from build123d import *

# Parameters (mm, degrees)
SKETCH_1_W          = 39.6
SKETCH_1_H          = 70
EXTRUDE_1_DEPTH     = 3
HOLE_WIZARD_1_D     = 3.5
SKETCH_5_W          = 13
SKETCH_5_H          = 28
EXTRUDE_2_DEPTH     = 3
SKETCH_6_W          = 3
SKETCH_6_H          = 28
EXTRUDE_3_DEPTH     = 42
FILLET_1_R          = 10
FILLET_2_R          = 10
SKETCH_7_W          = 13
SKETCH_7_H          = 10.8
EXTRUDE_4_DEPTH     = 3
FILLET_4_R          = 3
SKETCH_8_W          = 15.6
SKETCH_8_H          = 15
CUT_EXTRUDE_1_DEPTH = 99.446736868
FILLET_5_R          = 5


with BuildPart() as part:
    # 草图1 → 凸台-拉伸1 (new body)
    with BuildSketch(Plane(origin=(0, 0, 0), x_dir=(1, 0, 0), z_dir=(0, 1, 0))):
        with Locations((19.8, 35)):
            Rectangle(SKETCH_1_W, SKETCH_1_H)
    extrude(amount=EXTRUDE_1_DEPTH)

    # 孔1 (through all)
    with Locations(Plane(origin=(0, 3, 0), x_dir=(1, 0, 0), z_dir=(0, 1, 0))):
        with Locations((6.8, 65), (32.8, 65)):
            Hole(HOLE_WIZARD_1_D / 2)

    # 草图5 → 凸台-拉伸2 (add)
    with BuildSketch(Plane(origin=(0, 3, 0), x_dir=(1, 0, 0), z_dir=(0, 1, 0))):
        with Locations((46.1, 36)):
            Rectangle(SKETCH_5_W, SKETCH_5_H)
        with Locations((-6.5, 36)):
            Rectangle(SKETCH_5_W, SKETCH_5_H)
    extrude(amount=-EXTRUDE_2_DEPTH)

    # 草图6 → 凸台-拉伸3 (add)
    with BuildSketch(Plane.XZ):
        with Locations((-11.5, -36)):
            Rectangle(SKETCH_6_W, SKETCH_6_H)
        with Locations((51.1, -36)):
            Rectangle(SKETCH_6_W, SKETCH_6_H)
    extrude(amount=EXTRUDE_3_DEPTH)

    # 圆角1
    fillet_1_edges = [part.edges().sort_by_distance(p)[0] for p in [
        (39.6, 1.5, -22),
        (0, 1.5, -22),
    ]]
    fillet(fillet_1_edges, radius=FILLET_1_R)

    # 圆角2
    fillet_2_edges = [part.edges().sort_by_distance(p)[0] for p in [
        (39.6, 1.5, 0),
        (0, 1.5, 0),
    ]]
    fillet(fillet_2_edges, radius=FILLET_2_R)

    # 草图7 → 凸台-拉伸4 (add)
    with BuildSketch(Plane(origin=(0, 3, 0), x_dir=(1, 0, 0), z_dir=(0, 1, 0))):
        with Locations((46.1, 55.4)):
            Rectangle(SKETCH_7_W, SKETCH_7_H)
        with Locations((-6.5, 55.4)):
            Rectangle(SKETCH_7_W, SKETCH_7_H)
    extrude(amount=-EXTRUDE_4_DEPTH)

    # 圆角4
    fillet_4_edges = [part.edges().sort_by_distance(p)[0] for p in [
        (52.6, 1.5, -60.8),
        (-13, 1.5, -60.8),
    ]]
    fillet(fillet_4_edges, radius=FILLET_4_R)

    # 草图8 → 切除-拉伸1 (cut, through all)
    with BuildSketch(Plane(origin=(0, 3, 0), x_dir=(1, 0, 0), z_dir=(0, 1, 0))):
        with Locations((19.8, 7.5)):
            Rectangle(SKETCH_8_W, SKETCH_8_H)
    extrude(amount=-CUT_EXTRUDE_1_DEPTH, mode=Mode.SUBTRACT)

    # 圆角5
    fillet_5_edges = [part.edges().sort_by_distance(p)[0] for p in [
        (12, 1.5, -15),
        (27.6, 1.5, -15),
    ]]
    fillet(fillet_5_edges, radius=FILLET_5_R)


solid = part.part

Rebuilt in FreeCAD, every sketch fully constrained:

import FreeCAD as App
import Part
import Sketcher
from FreeCAD import Vector
Q = App.Units.Quantity


def edges_at(feature, points):
    """Names of the edges that pass closest to the given points."""
    edges = feature.Shape.Edges
    near = lambda p: min(range(len(edges)), key=lambda i: edges[i].distToShape(Part.Vertex(*p))[0])
    return sorted({f"Edge{near(p) + 1}" for p in points})

doc = App.newDocument("Part")
params = doc.addObject("Spreadsheet::Sheet", "Params")
for row, (alias, value) in enumerate([
    ("sketch1_height", "70 mm"),
    ("sketch1_width", "39.6 mm"),
    ("pad1_length", "3 mm"),
    ("sketch2_diameter", "3.5 mm"),
    ("hole_diameter", "3.5 mm"),
    ("sketch3_width", "13 mm"),
    ("sketch3_height", "28 mm"),
    ("pad2_length", "3 mm"),
    ("sketch4_width", "3 mm"),
    ("sketch4_height", "28 mm"),
    ("pad3_length", "42 mm"),
    ("fillet_radius", "10 mm"),
    ("fillet2_radius", "10 mm"),
    ("sketch5_width", "13 mm"),
    ("sketch5_height", "10.8 mm"),
    ("pad4_length", "3 mm"),
    ("fillet3_radius", "3 mm"),
    ("sketch6_height", "15 mm"),
    ("sketch6_width", "15.6 mm"),
    ("fillet4_radius", "5 mm"),
], start=1):
    params.set(f"A{row}", alias)
    params.set(f"B{row}", "=" + value)
    params.setAlias(f"B{row}", alias)

body = doc.addObject("PartDesign::Body", "Body")

# Sketch on XZ plane
sketch1 = body.newObject("Sketcher::SketchObject", "Sketch")
sketch1.AttachmentSupport = (doc.getObject("XZ_Plane"), [""])
sketch1.MapMode = "FlatFace"
sketch1.addGeometry(Part.LineSegment(Vector(0, -70, 0), Vector(0, 0, 0)), False)
sketch1.addGeometry(Part.LineSegment(Vector(0, 0, 0), Vector(40, 0, 0)), False)
sketch1.addGeometry(Part.LineSegment(Vector(40, 0, 0), Vector(40, -70, 0)), False)
sketch1.addGeometry(Part.LineSegment(Vector(40, -70, 0), Vector(0, -70, 0)), False)
sketch1.addConstraint(Sketcher.Constraint("Coincident", 0, 2, 1, 1))
sketch1.addConstraint(Sketcher.Constraint("Coincident", 1, 2, 2, 1))
sketch1.addConstraint(Sketcher.Constraint("Coincident", 2, 2, 3, 1))
sketch1.addConstraint(Sketcher.Constraint("Coincident", 3, 2, 0, 1))
sketch1.addConstraint(Sketcher.Constraint("Vertical", 0))
sketch1.addConstraint(Sketcher.Constraint("Horizontal", 1))
sketch1.addConstraint(Sketcher.Constraint("Vertical", 2))
sketch1.addConstraint(Sketcher.Constraint("Horizontal", 3))
sketch1.addConstraint(Sketcher.Constraint("Coincident", 0, 2, -1, 1))
sketch1.addConstraint(Sketcher.Constraint("DistanceY", 0, 1, 0, 2, Q("70 mm")))
sketch1.addConstraint(Sketcher.Constraint("DistanceX", 1, 1, 1, 2, Q("39.6 mm")))
sketch1.setExpression("Constraints[9]", "Params.sketch1_height")
sketch1.setExpression("Constraints[10]", "Params.sketch1_width")
pad1 = body.newObject("PartDesign::Pad", "Pad")
pad1.Profile = sketch1
pad1.setExpression("Length", "Params.pad1_length")
pad1.Reversed = True

# Sketch on XZ plane
sketch2 = body.newObject("Sketcher::SketchObject", "Sketch001")
sketch2.AttachmentSupport = (doc.getObject("XZ_Plane"), [""])
sketch2.MapMode = "FlatFace"
sketch2.AttachmentOffset = App.Placement(Vector(0, 0, -3), App.Rotation())
sketch2.addGeometry(Part.Circle(Vector(6.8, -65, 0), Vector(0, 0, 1), 1.8), False)
sketch2.addGeometry(Part.Circle(Vector(32.8, -65, 0), Vector(0, 0, 1), 1.8), False)
sketch2.addConstraint(Sketcher.Constraint("Equal", 0, 1))
sketch2.addConstraint(Sketcher.Constraint("Horizontal", 0, 3, 1, 3))
sketch2.addConstraint(Sketcher.Constraint("Diameter", 0, Q("3.5 mm")))
sketch2.addConstraint(Sketcher.Constraint("DistanceY", 0, 3, -1, 1, Q("65 mm")))
sketch2.addConstraint(Sketcher.Constraint("DistanceX", 0, 3, 1, 3, Q("26 mm")))
sketch2.addConstraint(Sketcher.Constraint("DistanceX", -1, 1, 0, 3, Q("6.8 mm")))
sketch2.setExpression("Constraints[2]", "Params.sketch2_diameter")
doc.recompute()
hole = body.newObject("PartDesign::Hole", "Hole")
hole.Profile = sketch2
hole.ThreadType = "None"
hole.setExpression("Diameter", "Params.hole_diameter")
hole.DepthType = "ThroughAll"
hole.Reversed = True

# Sketch on XZ plane
sketch3 = body.newObject("Sketcher::SketchObject", "Sketch002")
sketch3.AttachmentSupport = (doc.getObject("XZ_Plane"), [""])
sketch3.MapMode = "FlatFace"
sketch3.AttachmentOffset = App.Placement(Vector(0, 0, -3), App.Rotation())
sketch3.addGeometry(Part.LineSegment(Vector(40, -50, 0), Vector(40, -22, 0)), False)
sketch3.addGeometry(Part.LineSegment(Vector(40, -22, 0), Vector(53, -22, 0)), False)
sketch3.addGeometry(Part.LineSegment(Vector(53, -22, 0), Vector(53, -50, 0)), False)
sketch3.addGeometry(Part.LineSegment(Vector(53, -50, 0), Vector(40, -50, 0)), False)
sketch3.addGeometry(Part.LineSegment(Vector(-13, -50, 0), Vector(-13, -22, 0)), False)
sketch3.addGeometry(Part.LineSegment(Vector(-13, -22, 0), Vector(0, -22, 0)), False)
sketch3.addGeometry(Part.LineSegment(Vector(0, -22, 0), Vector(0, -50, 0)), False)
sketch3.addGeometry(Part.LineSegment(Vector(0, -50, 0), Vector(-13, -50, 0)), False)
sketch3.addConstraint(Sketcher.Constraint("Coincident", 0, 2, 1, 1))
sketch3.addConstraint(Sketcher.Constraint("Coincident", 1, 2, 2, 1))
sketch3.addConstraint(Sketcher.Constraint("Coincident", 2, 2, 3, 1))
sketch3.addConstraint(Sketcher.Constraint("Coincident", 3, 2, 0, 1))
sketch3.addConstraint(Sketcher.Constraint("Coincident", 4, 2, 5, 1))
sketch3.addConstraint(Sketcher.Constraint("Coincident", 5, 2, 6, 1))
sketch3.addConstraint(Sketcher.Constraint("Coincident", 6, 2, 7, 1))
sketch3.addConstraint(Sketcher.Constraint("Coincident", 7, 2, 4, 1))
sketch3.addConstraint(Sketcher.Constraint("Vertical", 0))
sketch3.addConstraint(Sketcher.Constraint("Horizontal", 1))
sketch3.addConstraint(Sketcher.Constraint("Vertical", 2))
sketch3.addConstraint(Sketcher.Constraint("Horizontal", 3))
sketch3.addConstraint(Sketcher.Constraint("Vertical", 4))
sketch3.addConstraint(Sketcher.Constraint("Horizontal", 5))
sketch3.addConstraint(Sketcher.Constraint("Vertical", 6))
sketch3.addConstraint(Sketcher.Constraint("Horizontal", 7))
sketch3.addConstraint(Sketcher.Constraint("PointOnObject", 5, 2, -2))
sketch3.addConstraint(Sketcher.Constraint("Horizontal", 1, 2, 4, 2))
sketch3.addConstraint(Sketcher.Constraint("Horizontal", 3, 2, 6, 2))
sketch3.addConstraint(Sketcher.Constraint("Equal", 3, 5))
sketch3.addConstraint(Sketcher.Constraint("DistanceX", 1, 1, 1, 2, Q("13 mm")))
sketch3.addConstraint(Sketcher.Constraint("DistanceY", 0, 1, 0, 2, Q("28 mm")))
sketch3.addConstraint(Sketcher.Constraint("DistanceY", 0, 2, -1, 1, Q("22 mm")))
sketch3.addConstraint(Sketcher.Constraint("DistanceX", -1, 1, 0, 2, Q("39.6 mm")))
sketch3.setExpression("Constraints[20]", "Params.sketch3_width")
sketch3.setExpression("Constraints[21]", "Params.sketch3_height")
pad2 = body.newObject("PartDesign::Pad", "Pad001")
pad2.Profile = sketch3
pad2.setExpression("Length", "Params.pad2_length")

# Sketch on XZ plane
sketch4 = body.newObject("Sketcher::SketchObject", "Sketch003")
sketch4.AttachmentSupport = (doc.getObject("XZ_Plane"), [""])
sketch4.MapMode = "FlatFace"
sketch4.addGeometry(Part.LineSegment(Vector(-13, -22, 0), Vector(-13, -50, 0)), False)
sketch4.addGeometry(Part.LineSegment(Vector(-13, -50, 0), Vector(-10, -50, 0)), False)
sketch4.addGeometry(Part.LineSegment(Vector(-10, -50, 0), Vector(-10, -22, 0)), False)
sketch4.addGeometry(Part.LineSegment(Vector(-10, -22, 0), Vector(-13, -22, 0)), False)
sketch4.addGeometry(Part.LineSegment(Vector(49.6, -22, 0), Vector(49.6, -50, 0)), False)
sketch4.addGeometry(Part.LineSegment(Vector(49.6, -50, 0), Vector(52.6, -50, 0)), False)
sketch4.addGeometry(Part.LineSegment(Vector(52.6, -50, 0), Vector(52.6, -22, 0)), False)
sketch4.addGeometry(Part.LineSegment(Vector(52.6, -22, 0), Vector(49.6, -22, 0)), False)
sketch4.addConstraint(Sketcher.Constraint("Coincident", 0, 2, 1, 1))
sketch4.addConstraint(Sketcher.Constraint("Coincident", 1, 2, 2, 1))
sketch4.addConstraint(Sketcher.Constraint("Coincident", 2, 2, 3, 1))
sketch4.addConstraint(Sketcher.Constraint("Coincident", 3, 2, 0, 1))
sketch4.addConstraint(Sketcher.Constraint("Coincident", 4, 2, 5, 1))
sketch4.addConstraint(Sketcher.Constraint("Coincident", 5, 2, 6, 1))
sketch4.addConstraint(Sketcher.Constraint("Coincident", 6, 2, 7, 1))
sketch4.addConstraint(Sketcher.Constraint("Coincident", 7, 2, 4, 1))
sketch4.addConstraint(Sketcher.Constraint("Vertical", 0))
sketch4.addConstraint(Sketcher.Constraint("Horizontal", 1))
sketch4.addConstraint(Sketcher.Constraint("Vertical", 2))
sketch4.addConstraint(Sketcher.Constraint("Horizontal", 3))
sketch4.addConstraint(Sketcher.Constraint("Vertical", 4))
sketch4.addConstraint(Sketcher.Constraint("Horizontal", 5))
sketch4.addConstraint(Sketcher.Constraint("Vertical", 6))
sketch4.addConstraint(Sketcher.Constraint("Horizontal", 7))
sketch4.addConstraint(Sketcher.Constraint("Horizontal", 1, 2, 4, 2))
sketch4.addConstraint(Sketcher.Constraint("Horizontal", 3, 2, 6, 2))
sketch4.addConstraint(Sketcher.Constraint("Equal", 3, 5))
sketch4.addConstraint(Sketcher.Constraint("DistanceX", 1, 1, 1, 2, Q("3 mm")))
sketch4.addConstraint(Sketcher.Constraint("DistanceY", 0, 2, 0, 1, Q("28 mm")))
sketch4.addConstraint(Sketcher.Constraint("DistanceX", 0, 2, -1, 1, Q("13 mm")))
sketch4.addConstraint(Sketcher.Constraint("DistanceY", 0, 2, -1, 1, Q("50 mm")))
sketch4.addConstraint(Sketcher.Constraint("DistanceX", -1, 1, 4, 2, Q("49.6 mm")))
sketch4.setExpression("Constraints[19]", "Params.sketch4_width")
sketch4.setExpression("Constraints[20]", "Params.sketch4_height")
pad3 = body.newObject("PartDesign::Pad", "Pad002")
pad3.Profile = sketch4
pad3.setExpression("Length", "Params.pad3_length")
doc.recompute()

fillet = body.newObject("PartDesign::Fillet", "Fillet")
fillet.Base = (pad3, edges_at(pad3, [(39.6, 1.5, -22), (0, 1.5, -22)]))
fillet.setExpression("Radius", "Params.fillet_radius")
doc.recompute()

fillet2 = body.newObject("PartDesign::Fillet", "Fillet001")
fillet2.Base = (fillet, edges_at(fillet, [(39.6, 1.5, 0), (0, 1.5, 0)]))
fillet2.setExpression("Radius", "Params.fillet2_radius")

# Sketch on XZ plane
sketch5 = body.newObject("Sketcher::SketchObject", "Sketch004")
sketch5.AttachmentSupport = (doc.getObject("XZ_Plane"), [""])
sketch5.MapMode = "FlatFace"
sketch5.AttachmentOffset = App.Placement(Vector(0, 0, -3), App.Rotation())
sketch5.addGeometry(Part.LineSegment(Vector(40, -61, 0), Vector(40, -50, 0)), False)
sketch5.addGeometry(Part.LineSegment(Vector(40, -50, 0), Vector(53, -50, 0)), False)
sketch5.addGeometry(Part.LineSegment(Vector(53, -50, 0), Vector(53, -61, 0)), False)
sketch5.addGeometry(Part.LineSegment(Vector(53, -61, 0), Vector(40, -61, 0)), False)
sketch5.addGeometry(Part.LineSegment(Vector(-13, -61, 0), Vector(-13, -50, 0)), False)
sketch5.addGeometry(Part.LineSegment(Vector(-13, -50, 0), Vector(0, -50, 0)), False)
sketch5.addGeometry(Part.LineSegment(Vector(0, -50, 0), Vector(0, -61, 0)), False)
sketch5.addGeometry(Part.LineSegment(Vector(0, -61, 0), Vector(-13, -61, 0)), False)
sketch5.addConstraint(Sketcher.Constraint("Coincident", 0, 2, 1, 1))
sketch5.addConstraint(Sketcher.Constraint("Coincident", 1, 2, 2, 1))
sketch5.addConstraint(Sketcher.Constraint("Coincident", 2, 2, 3, 1))
sketch5.addConstraint(Sketcher.Constraint("Coincident", 3, 2, 0, 1))
sketch5.addConstraint(Sketcher.Constraint("Coincident", 4, 2, 5, 1))
sketch5.addConstraint(Sketcher.Constraint("Coincident", 5, 2, 6, 1))
sketch5.addConstraint(Sketcher.Constraint("Coincident", 6, 2, 7, 1))
sketch5.addConstraint(Sketcher.Constraint("Coincident", 7, 2, 4, 1))
sketch5.addConstraint(Sketcher.Constraint("Vertical", 0))
sketch5.addConstraint(Sketcher.Constraint("Horizontal", 1))
sketch5.addConstraint(Sketcher.Constraint("Vertical", 2))
sketch5.addConstraint(Sketcher.Constraint("Horizontal", 3))
sketch5.addConstraint(Sketcher.Constraint("Vertical", 4))
sketch5.addConstraint(Sketcher.Constraint("Horizontal", 5))
sketch5.addConstraint(Sketcher.Constraint("Vertical", 6))
sketch5.addConstraint(Sketcher.Constraint("Horizontal", 7))
sketch5.addConstraint(Sketcher.Constraint("PointOnObject", 5, 2, -2))
sketch5.addConstraint(Sketcher.Constraint("Horizontal", 1, 2, 4, 2))
sketch5.addConstraint(Sketcher.Constraint("Horizontal", 3, 2, 6, 2))
sketch5.addConstraint(Sketcher.Constraint("Equal", 3, 5))
sketch5.addConstraint(Sketcher.Constraint("DistanceX", 1, 1, 1, 2, Q("13 mm")))
sketch5.addConstraint(Sketcher.Constraint("DistanceY", 0, 1, 0, 2, Q("10.8 mm")))
sketch5.addConstraint(Sketcher.Constraint("DistanceY", 0, 2, -1, 1, Q("50 mm")))
sketch5.addConstraint(Sketcher.Constraint("DistanceX", -1, 1, 0, 2, Q("39.6 mm")))
sketch5.setExpression("Constraints[20]", "Params.sketch5_width")
sketch5.setExpression("Constraints[21]", "Params.sketch5_height")
pad4 = body.newObject("PartDesign::Pad", "Pad003")
pad4.Profile = sketch5
pad4.setExpression("Length", "Params.pad4_length")
doc.recompute()

fillet3 = body.newObject("PartDesign::Fillet", "Fillet002")
fillet3.Base = (pad4, edges_at(pad4, [(52.6, 1.5, -60.8), (-13, 1.5, -60.8)]))
fillet3.setExpression("Radius", "Params.fillet3_radius")

# Sketch on XZ plane
sketch6 = body.newObject("Sketcher::SketchObject", "Sketch005")
sketch6.AttachmentSupport = (doc.getObject("XZ_Plane"), [""])
sketch6.MapMode = "FlatFace"
sketch6.AttachmentOffset = App.Placement(Vector(0, 0, -3), App.Rotation())
sketch6.addGeometry(Part.LineSegment(Vector(12, -15, 0), Vector(12, 0, 0)), False)
sketch6.addGeometry(Part.LineSegment(Vector(12, 0, 0), Vector(28, 0, 0)), False)
sketch6.addGeometry(Part.LineSegment(Vector(28, 0, 0), Vector(28, -15, 0)), False)
sketch6.addGeometry(Part.LineSegment(Vector(28, -15, 0), Vector(12, -15, 0)), False)
sketch6.addConstraint(Sketcher.Constraint("Coincident", 0, 2, 1, 1))
sketch6.addConstraint(Sketcher.Constraint("Coincident", 1, 2, 2, 1))
sketch6.addConstraint(Sketcher.Constraint("Coincident", 2, 2, 3, 1))
sketch6.addConstraint(Sketcher.Constraint("Coincident", 3, 2, 0, 1))
sketch6.addConstraint(Sketcher.Constraint("Vertical", 0))
sketch6.addConstraint(Sketcher.Constraint("Horizontal", 1))
sketch6.addConstraint(Sketcher.Constraint("Vertical", 2))
sketch6.addConstraint(Sketcher.Constraint("Horizontal", 3))
sketch6.addConstraint(Sketcher.Constraint("PointOnObject", 0, 2, -1))
sketch6.addConstraint(Sketcher.Constraint("DistanceY", 0, 1, 0, 2, Q("15 mm")))
sketch6.addConstraint(Sketcher.Constraint("DistanceX", 1, 1, 1, 2, Q("15.6 mm")))
sketch6.addConstraint(Sketcher.Constraint("DistanceX", -1, 1, 0, 2, Q("12 mm")))
sketch6.setExpression("Constraints[9]", "Params.sketch6_height")
sketch6.setExpression("Constraints[10]", "Params.sketch6_width")
pocket1 = body.newObject("PartDesign::Pocket", "Pocket")
pocket1.Profile = sketch6
pocket1.Type = "ThroughAll"
pocket1.Reversed = True
doc.recompute()

fillet4 = body.newObject("PartDesign::Fillet", "Fillet003")
fillet4.Base = (pocket1, edges_at(pocket1, [(12, 1.5, -15), (27.6, 1.5, -15)]))
fillet4.setExpression("Radius", "Params.fillet4_radius")

doc.recompute()
